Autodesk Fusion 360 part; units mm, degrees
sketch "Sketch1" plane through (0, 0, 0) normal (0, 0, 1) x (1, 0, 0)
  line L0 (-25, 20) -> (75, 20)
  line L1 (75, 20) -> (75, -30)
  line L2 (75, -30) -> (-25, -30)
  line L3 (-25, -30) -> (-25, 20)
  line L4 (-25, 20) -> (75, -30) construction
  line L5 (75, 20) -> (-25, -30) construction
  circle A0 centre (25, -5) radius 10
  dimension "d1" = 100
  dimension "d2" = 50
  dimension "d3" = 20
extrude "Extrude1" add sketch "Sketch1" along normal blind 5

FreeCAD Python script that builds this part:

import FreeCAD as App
import Part
import Sketcher

V = App.Vector
Q = App.Units.Quantity

doc = App.newDocument("Part")
body = doc.addObject("PartDesign::Body", "Body")

# Sketch on XY plane
sketch1 = body.newObject("Sketcher::SketchObject", "Sketch")
sketch1.AttachmentSupport = (doc.getObject("XY_Plane"), [""])
sketch1.MapMode = "FlatFace"
sketch1.addGeometry(Part.LineSegment(V(75, 20, 0), V(-25, 20, 0)), False)
sketch1.addGeometry(Part.LineSegment(V(-25, 20, 0), V(-25, -30, 0)), False)
sketch1.addGeometry(Part.LineSegment(V(-25, -30, 0), V(75, -30, 0)), False)
sketch1.addGeometry(Part.LineSegment(V(75, -30, 0), V(75, 20, 0)), False)
sketch1.addGeometry(Part.Circle(V(25, -5, 0), V(0, 0, 1), 10), False)
sketch1.addConstraint(Sketcher.Constraint("Coincident", 0, 2, 1, 1))
sketch1.addConstraint(Sketcher.Constraint("Coincident", 1, 2, 2, 1))
sketch1.addConstraint(Sketcher.Constraint("Coincident", 2, 2, 3, 1))
sketch1.addConstraint(Sketcher.Constraint("Coincident", 3, 2, 0, 1))
sketch1.addConstraint(Sketcher.Constraint("Horizontal", 0))
sketch1.addConstraint(Sketcher.Constraint("Vertical", 1))
sketch1.addConstraint(Sketcher.Constraint("Horizontal", 2))
sketch1.addConstraint(Sketcher.Constraint("Vertical", 3))
sketch1.addConstraint(Sketcher.Constraint("Diameter", 4, Q("20 mm")))
sketch1.addConstraint(Sketcher.Constraint("DistanceX", 0, 2, 0, 1, Q("100 mm")))
sketch1.addConstraint(Sketcher.Constraint("DistanceY", 1, 2, 1, 1, Q("50 mm")))
sketch1.addConstraint(Sketcher.Constraint("DistanceY", -1, 1, 0, 2, Q("20 mm")))
sketch1.addConstraint(Sketcher.Constraint("DistanceX", 0, 2, 4, 3, Q("50 mm")))
sketch1.addConstraint(Sketcher.Constraint("DistanceX", -1, 1, 4, 3, Q("25 mm")))
sketch1.addConstraint(Sketcher.Constraint("DistanceY", 4, 3, -1, 1, Q("5 mm")))
pad1 = body.newObject("PartDesign::Pad", "Pad")
pad1.Profile = sketch1
pad1.Length = 5

doc.recompute()
